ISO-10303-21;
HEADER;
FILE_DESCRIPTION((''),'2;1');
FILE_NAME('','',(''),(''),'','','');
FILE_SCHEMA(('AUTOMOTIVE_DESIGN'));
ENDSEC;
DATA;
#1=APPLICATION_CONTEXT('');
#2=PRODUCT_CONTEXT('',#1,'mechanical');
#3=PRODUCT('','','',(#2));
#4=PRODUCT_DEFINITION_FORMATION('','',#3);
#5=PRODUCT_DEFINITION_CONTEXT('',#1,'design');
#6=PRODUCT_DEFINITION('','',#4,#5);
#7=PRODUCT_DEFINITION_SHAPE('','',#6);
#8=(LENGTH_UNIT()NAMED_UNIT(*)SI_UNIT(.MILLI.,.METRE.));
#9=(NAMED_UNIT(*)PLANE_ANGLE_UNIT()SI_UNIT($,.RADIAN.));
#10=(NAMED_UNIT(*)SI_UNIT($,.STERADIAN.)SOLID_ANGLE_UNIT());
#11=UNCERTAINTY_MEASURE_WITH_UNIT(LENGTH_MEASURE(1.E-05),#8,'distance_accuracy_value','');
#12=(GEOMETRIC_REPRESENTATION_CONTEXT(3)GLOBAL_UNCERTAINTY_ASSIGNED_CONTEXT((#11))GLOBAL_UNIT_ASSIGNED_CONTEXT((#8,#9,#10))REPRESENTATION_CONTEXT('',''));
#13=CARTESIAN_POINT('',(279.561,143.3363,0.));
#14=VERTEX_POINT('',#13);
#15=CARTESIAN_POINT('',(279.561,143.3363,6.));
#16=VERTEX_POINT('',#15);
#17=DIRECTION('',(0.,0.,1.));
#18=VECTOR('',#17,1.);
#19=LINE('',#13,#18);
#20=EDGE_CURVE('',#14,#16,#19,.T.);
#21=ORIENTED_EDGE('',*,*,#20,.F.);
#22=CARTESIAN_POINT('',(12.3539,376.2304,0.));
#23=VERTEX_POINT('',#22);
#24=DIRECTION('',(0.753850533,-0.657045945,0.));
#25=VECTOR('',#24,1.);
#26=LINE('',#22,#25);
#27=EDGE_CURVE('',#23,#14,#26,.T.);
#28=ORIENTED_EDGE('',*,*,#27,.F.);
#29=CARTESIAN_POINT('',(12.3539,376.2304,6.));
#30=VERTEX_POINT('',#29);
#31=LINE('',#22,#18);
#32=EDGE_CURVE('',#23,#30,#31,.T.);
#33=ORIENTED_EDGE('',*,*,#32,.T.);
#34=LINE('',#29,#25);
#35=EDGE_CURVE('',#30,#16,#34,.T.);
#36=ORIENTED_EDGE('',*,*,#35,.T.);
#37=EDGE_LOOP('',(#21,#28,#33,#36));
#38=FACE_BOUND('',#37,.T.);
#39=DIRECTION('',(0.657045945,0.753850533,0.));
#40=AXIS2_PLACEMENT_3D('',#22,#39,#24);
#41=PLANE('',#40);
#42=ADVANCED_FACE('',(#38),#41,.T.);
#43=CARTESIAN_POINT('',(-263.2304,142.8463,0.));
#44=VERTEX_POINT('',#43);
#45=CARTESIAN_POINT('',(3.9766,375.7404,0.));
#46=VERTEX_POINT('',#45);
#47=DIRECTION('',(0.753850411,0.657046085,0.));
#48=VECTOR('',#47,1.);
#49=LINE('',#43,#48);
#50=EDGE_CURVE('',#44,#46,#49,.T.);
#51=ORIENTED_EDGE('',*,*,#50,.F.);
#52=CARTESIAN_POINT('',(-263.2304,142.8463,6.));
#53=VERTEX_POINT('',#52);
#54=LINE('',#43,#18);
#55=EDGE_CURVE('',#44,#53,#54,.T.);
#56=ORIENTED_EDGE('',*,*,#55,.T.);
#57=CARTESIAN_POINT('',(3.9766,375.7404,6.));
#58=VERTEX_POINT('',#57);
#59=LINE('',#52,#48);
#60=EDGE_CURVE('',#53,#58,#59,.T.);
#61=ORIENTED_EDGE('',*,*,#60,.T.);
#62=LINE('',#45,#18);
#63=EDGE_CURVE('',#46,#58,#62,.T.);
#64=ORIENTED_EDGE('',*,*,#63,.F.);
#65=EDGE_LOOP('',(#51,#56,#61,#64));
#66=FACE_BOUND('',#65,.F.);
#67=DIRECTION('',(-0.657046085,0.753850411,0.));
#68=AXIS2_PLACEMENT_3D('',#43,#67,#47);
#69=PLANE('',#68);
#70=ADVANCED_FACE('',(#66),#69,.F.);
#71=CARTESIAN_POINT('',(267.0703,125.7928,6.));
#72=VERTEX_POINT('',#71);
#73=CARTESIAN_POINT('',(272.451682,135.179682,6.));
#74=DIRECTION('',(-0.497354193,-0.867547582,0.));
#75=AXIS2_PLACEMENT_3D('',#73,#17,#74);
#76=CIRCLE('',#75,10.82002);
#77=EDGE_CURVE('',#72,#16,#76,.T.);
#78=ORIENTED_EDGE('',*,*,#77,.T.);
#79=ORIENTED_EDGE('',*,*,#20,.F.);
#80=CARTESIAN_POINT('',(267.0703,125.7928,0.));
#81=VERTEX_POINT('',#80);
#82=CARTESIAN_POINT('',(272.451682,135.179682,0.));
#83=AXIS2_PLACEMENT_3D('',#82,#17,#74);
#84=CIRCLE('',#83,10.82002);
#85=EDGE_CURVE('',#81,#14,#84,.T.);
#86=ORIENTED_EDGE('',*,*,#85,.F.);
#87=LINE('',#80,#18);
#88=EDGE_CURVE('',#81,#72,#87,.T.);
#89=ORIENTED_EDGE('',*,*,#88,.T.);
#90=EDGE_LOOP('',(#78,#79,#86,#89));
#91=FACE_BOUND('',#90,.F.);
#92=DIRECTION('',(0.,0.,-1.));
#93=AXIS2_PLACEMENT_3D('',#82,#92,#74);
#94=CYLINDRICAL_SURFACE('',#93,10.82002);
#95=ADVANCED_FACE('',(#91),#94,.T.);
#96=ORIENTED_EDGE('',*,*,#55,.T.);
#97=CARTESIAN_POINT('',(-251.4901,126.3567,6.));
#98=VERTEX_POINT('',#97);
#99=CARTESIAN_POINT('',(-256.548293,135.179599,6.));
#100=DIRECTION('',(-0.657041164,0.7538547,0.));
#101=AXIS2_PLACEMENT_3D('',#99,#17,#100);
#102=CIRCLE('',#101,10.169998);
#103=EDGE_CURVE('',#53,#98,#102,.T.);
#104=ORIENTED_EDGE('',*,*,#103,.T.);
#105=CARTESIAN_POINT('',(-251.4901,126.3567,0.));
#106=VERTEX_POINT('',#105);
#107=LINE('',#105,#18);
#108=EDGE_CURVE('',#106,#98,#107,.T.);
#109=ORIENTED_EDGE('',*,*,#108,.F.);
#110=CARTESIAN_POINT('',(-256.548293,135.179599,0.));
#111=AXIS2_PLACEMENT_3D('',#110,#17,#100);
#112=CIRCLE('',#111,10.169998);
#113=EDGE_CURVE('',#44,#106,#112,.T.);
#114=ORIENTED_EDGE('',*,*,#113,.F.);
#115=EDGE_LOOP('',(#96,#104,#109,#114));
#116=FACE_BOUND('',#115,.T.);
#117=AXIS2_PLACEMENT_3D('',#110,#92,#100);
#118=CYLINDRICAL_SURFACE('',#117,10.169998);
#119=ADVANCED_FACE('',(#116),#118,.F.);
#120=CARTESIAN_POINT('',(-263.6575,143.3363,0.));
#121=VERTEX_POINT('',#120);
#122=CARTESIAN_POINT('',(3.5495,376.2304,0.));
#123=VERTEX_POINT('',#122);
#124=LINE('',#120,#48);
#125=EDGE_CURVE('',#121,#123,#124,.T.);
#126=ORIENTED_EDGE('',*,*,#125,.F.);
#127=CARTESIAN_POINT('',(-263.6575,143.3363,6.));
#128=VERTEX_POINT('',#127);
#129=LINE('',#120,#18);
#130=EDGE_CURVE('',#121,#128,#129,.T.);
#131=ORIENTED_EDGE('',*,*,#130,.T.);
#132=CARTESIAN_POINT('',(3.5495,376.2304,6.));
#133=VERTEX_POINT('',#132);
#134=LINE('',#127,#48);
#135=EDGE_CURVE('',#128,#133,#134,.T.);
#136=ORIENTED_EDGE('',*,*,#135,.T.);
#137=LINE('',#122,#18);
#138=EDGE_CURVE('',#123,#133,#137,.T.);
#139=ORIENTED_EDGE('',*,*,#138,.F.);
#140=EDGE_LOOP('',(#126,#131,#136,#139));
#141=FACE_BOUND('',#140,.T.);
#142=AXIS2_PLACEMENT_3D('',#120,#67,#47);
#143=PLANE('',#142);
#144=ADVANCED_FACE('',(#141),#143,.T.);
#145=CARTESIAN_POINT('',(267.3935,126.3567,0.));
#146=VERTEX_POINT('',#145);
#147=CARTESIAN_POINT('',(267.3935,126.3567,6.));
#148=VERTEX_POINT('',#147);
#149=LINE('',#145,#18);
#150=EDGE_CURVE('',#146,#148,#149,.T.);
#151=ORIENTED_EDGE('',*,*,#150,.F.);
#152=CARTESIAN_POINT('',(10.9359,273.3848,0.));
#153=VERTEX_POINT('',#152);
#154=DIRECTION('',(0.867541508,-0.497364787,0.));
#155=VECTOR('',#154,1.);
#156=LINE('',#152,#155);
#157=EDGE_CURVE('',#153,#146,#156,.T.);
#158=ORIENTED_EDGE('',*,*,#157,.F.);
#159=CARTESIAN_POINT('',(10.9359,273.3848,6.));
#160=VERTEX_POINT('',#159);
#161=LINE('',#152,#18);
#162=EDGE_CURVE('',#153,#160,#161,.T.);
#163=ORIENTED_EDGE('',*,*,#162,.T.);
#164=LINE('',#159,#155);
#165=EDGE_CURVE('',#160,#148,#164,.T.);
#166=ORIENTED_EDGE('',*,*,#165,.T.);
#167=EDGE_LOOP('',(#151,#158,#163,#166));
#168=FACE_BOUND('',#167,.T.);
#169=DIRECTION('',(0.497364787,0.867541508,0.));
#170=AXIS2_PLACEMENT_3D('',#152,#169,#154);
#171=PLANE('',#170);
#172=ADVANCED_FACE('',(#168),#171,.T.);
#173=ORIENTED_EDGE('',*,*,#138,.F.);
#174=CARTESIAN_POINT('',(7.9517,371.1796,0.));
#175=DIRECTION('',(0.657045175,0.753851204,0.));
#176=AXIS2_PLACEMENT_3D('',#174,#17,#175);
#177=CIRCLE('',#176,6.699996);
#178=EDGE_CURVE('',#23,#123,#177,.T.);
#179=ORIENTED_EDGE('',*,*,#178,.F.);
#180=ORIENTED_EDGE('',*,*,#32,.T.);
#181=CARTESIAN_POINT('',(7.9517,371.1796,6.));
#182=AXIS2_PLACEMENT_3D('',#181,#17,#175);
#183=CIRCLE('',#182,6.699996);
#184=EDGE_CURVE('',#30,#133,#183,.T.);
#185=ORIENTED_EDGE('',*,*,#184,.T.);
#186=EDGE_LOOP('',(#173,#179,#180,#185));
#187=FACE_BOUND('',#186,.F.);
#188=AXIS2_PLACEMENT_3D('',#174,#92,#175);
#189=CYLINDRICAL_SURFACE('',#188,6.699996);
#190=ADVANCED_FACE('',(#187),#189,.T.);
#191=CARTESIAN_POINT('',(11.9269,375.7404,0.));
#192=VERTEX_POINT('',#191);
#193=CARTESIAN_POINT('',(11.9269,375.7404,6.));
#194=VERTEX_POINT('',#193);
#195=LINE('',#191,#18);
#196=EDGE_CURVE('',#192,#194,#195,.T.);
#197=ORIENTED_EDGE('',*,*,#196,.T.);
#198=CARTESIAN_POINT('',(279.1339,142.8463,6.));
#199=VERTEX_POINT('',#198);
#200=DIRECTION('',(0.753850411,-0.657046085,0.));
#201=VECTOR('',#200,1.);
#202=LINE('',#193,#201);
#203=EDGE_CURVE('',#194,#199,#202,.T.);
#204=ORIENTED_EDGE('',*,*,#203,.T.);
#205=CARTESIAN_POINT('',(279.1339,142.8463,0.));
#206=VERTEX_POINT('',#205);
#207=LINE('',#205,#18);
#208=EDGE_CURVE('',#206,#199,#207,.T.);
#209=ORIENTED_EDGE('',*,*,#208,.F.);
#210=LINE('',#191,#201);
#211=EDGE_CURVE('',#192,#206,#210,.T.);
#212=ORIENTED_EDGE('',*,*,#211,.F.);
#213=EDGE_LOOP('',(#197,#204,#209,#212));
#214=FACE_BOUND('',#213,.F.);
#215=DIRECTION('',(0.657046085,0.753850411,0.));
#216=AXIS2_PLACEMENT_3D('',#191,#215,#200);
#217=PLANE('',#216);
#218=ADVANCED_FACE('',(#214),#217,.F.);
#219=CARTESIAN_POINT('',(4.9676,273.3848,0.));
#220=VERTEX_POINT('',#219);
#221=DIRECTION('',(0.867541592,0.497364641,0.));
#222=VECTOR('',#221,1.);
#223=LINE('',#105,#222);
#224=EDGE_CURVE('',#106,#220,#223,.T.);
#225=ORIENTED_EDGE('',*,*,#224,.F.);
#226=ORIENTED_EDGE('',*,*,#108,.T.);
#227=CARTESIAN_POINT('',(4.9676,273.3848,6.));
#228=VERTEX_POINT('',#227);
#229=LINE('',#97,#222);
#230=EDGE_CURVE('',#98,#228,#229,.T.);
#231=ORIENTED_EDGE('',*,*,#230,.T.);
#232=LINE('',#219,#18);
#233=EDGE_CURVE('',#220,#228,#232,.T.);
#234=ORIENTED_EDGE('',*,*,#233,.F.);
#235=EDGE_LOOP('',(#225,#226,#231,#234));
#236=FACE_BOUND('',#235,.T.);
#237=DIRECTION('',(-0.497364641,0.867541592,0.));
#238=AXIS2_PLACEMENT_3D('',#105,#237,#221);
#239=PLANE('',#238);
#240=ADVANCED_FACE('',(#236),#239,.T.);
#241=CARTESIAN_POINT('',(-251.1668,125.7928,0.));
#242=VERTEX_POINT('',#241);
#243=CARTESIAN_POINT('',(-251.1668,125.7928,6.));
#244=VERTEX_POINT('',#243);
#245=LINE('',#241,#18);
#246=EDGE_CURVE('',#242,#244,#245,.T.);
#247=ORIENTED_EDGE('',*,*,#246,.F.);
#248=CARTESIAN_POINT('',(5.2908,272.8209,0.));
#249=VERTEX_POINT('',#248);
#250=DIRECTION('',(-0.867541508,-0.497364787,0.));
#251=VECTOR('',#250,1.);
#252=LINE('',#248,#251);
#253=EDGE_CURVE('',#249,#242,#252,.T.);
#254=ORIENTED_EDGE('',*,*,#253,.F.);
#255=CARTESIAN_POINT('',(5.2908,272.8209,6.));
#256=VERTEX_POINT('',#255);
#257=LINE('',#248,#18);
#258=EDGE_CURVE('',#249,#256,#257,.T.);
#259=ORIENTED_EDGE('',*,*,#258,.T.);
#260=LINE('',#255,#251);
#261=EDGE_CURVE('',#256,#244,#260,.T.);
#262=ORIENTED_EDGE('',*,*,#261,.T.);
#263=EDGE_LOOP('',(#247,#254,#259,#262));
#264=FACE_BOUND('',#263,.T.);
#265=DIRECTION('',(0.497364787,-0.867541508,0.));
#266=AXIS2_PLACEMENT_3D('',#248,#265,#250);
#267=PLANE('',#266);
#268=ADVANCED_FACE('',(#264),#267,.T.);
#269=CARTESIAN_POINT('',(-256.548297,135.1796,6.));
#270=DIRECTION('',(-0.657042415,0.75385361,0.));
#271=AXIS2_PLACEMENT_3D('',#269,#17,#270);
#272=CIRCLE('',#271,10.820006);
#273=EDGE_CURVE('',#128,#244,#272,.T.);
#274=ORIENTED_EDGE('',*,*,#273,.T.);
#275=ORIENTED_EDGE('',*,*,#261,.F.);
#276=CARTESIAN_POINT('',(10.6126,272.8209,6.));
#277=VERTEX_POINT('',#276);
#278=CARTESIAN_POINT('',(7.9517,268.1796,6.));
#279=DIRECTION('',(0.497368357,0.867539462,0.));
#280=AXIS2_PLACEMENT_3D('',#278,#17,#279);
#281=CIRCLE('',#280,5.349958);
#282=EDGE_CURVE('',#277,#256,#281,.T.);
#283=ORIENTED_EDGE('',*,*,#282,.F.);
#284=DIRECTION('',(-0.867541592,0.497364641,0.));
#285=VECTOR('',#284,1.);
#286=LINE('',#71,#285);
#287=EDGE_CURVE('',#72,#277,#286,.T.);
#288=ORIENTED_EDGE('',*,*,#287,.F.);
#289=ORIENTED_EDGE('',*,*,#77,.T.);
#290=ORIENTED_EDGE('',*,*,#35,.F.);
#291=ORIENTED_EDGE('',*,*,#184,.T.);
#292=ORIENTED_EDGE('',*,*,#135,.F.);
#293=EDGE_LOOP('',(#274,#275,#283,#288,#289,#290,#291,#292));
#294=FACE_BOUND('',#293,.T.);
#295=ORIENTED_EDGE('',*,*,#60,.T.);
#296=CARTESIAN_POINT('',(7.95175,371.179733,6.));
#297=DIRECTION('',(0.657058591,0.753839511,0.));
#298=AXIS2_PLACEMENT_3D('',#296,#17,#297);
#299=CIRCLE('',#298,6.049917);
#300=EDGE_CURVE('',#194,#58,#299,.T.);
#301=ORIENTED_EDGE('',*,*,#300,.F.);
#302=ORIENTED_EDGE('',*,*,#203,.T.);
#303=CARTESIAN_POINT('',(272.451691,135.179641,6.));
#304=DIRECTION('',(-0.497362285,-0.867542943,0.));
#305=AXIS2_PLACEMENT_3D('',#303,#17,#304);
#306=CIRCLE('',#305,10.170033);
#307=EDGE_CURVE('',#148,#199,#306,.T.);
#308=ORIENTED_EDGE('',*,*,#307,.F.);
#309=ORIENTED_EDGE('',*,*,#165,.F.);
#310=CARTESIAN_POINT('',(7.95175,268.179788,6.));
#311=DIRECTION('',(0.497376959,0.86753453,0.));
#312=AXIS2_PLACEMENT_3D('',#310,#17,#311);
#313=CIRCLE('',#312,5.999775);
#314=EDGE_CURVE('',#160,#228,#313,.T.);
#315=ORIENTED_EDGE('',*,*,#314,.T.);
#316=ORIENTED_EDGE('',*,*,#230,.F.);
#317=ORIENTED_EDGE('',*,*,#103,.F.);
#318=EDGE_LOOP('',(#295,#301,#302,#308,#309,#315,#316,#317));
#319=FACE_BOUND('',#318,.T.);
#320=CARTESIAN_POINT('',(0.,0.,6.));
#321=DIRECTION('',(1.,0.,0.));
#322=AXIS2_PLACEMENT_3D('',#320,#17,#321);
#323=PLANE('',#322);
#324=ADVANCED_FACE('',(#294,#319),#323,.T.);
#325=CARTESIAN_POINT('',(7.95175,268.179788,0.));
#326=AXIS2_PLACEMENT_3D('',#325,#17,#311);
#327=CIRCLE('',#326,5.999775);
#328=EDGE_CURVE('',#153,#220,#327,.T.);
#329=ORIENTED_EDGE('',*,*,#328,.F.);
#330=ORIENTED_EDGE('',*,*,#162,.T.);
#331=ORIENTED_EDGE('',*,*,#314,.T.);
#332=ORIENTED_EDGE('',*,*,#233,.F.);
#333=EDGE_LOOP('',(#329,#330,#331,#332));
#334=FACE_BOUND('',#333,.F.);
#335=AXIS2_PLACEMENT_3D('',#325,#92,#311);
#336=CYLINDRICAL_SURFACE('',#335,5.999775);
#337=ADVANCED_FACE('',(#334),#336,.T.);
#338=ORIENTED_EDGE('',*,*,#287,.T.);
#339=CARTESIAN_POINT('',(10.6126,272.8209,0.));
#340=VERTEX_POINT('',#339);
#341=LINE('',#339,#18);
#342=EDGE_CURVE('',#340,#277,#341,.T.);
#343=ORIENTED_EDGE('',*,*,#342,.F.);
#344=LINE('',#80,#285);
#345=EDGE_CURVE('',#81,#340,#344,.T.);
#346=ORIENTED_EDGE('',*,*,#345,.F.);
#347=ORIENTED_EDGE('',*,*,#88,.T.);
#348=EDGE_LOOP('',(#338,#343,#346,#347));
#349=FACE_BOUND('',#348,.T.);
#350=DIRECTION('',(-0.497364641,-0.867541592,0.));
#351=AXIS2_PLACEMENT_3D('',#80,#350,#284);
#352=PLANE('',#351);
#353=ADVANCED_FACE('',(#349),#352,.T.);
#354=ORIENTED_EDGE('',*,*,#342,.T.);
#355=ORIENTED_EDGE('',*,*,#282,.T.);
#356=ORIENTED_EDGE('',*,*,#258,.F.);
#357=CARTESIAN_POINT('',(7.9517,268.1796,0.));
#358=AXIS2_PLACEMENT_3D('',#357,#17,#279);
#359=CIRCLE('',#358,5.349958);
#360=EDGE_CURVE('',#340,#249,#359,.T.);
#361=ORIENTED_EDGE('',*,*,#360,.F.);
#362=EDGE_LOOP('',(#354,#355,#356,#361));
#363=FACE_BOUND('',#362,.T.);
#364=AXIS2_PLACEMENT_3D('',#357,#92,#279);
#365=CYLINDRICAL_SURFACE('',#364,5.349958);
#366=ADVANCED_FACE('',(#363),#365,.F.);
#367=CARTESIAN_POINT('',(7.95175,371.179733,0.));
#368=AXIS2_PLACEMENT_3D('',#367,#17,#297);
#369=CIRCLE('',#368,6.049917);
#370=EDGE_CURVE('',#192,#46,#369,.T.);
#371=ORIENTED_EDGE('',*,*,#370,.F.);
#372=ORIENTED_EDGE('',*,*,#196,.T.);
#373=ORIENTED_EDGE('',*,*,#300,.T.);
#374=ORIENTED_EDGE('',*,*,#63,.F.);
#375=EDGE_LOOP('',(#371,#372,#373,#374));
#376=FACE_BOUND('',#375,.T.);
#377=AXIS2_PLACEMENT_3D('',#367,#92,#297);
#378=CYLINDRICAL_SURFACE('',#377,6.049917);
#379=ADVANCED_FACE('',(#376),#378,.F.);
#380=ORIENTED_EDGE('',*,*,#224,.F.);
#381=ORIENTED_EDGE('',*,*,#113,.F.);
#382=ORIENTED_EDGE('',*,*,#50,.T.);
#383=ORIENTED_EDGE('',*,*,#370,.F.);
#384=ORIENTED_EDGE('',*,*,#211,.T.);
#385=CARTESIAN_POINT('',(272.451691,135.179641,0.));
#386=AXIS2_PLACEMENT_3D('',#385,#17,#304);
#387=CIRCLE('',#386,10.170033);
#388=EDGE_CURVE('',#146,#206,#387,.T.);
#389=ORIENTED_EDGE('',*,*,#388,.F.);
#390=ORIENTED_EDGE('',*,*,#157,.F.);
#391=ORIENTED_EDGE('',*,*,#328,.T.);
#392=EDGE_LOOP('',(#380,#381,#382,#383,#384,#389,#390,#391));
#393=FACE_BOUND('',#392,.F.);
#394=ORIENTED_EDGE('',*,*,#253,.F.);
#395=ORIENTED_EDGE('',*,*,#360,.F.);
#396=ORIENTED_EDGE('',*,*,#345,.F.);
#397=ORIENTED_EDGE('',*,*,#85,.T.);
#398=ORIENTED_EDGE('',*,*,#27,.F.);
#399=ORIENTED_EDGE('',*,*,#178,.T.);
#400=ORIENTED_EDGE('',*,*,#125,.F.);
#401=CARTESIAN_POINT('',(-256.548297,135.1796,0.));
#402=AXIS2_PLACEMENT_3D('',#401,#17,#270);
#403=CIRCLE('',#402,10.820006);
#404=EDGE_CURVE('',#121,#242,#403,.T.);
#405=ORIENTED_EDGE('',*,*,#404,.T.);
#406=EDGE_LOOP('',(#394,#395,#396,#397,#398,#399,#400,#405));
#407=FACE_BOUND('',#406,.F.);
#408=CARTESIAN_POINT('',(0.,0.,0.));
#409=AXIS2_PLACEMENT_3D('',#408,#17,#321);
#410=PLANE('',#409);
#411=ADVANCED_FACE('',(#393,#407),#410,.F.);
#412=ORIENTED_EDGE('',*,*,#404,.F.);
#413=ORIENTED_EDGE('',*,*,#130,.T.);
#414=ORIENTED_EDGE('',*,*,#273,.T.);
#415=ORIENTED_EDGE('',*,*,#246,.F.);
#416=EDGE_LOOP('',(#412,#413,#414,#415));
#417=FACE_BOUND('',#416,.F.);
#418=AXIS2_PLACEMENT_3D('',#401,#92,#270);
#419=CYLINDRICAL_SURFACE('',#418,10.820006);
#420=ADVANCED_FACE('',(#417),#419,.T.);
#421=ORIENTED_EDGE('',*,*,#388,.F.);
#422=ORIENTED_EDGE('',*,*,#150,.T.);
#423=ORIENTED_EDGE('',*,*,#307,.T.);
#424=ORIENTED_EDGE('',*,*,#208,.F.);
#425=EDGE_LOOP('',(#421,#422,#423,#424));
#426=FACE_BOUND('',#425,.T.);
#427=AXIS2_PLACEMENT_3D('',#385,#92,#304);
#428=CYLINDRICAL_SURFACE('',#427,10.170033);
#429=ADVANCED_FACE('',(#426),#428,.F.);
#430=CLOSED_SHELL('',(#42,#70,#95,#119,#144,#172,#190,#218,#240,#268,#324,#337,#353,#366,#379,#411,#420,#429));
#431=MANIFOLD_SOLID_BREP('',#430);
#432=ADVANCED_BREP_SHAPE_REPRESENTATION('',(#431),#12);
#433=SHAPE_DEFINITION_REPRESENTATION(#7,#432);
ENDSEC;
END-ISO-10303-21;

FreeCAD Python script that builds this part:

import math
import FreeCAD as App
import Part
import Sketcher
from FreeCAD import Vector

doc = App.newDocument("Part")
body = doc.addObject("PartDesign::Body", "Body")

# Sketch on XY plane
sketch1 = body.newObject("Sketcher::SketchObject", "Sketch")
sketch1.AttachmentSupport = (doc.getObject("XY_Plane"), [""])
sketch1.MapMode = "FlatFace"
sketch1.addGeometry([
    Part.LineSegment(Vector(279.561, 143.3363, 0), Vector(12.3539, 376.2304, 0)),  # 0
    Part.ArcOfCircle(Part.Circle(Vector(7.9517, 371.1796, 0), Vector(0, 0, 1), 6.699996), math.radians(48.925092), math.radians(131.074908)),  # 1
    Part.LineSegment(Vector(3.5495, 376.2304, 0), Vector(-263.6575, 143.3363, 0)),  # 2
    Part.ArcOfCircle(Part.Circle(Vector(-256.5483, 135.1796, 0), Vector(0, 0, 1), 10.820004), math.radians(131.074689), math.radians(299.825866)),  # 3
    Part.LineSegment(Vector(-251.1668, 125.7928, 0), Vector(5.2908, 272.8209, 0)),  # 4
    Part.ArcOfCircle(Part.Circle(Vector(7.9517, 268.1796, 0), Vector(0, 0, 1), 5.349958), math.radians(60.173956), math.radians(119.826044)),  # 5
    Part.LineSegment(Vector(10.6126, 272.8209, 0), Vector(267.0703, 125.7928, 0)),  # 6
    Part.ArcOfCircle(Part.Circle(Vector(272.4517, 135.1796, 0), Vector(0, 0, 1), 10.819957), math.radians(-119.825406), math.radians(48.924912)),  # 7
    Part.ArcOfCircle(Part.Circle(Vector(7.9517, 371.1796, 0), Vector(0, 0, 1), 6.050051), math.radians(48.924545), math.radians(131.074741)),  # 8
    Part.LineSegment(Vector(11.9269, 375.7404, 0), Vector(279.1339, 142.8463, 0)),  # 9
    Part.ArcOfCircle(Part.Circle(Vector(272.4517, 135.1796, 0), Vector(0, 0, 1), 10.170003), math.radians(-119.825801), math.radians(48.925)),  # 10
    Part.LineSegment(Vector(267.3935, 126.3567, 0), Vector(10.9359, 273.3848, 0)),  # 11
    Part.ArcOfCircle(Part.Circle(Vector(7.9517, 268.1796, 0), Vector(0, 0, 1), 5.999963), math.radians(60.173865), math.radians(119.825306)),  # 12
    Part.LineSegment(Vector(4.9676, 273.3848, 0), Vector(-251.4901, 126.3567, 0)),  # 13
    Part.ArcOfCircle(Part.Circle(Vector(-256.5483, 135.1796, 0), Vector(0, 0, 1), 10.169993), math.radians(131.074575), math.radians(299.825801)),  # 14
    Part.LineSegment(Vector(-263.2304, 142.8463, 0), Vector(3.9766, 375.7404, 0)),  # 15
], False)
sketch1.addConstraint([
    Sketcher.Constraint("Tangent", 0, 2, 1, 1),
    Sketcher.Constraint("Tangent", 1, 2, 2, 1),
    Sketcher.Constraint("Tangent", 2, 2, 3, 1),
    Sketcher.Constraint("Tangent", 3, 2, 4, 1),
    Sketcher.Constraint("Tangent", 4, 2, 5, 2),
    Sketcher.Constraint("Tangent", 5, 1, 6, 1),
    Sketcher.Constraint("Tangent", 6, 2, 7, 1),
    Sketcher.Constraint("Tangent", 7, 2, 0, 1),
    Sketcher.Constraint("Tangent", 8, 1, 9, 1),
    Sketcher.Constraint("Tangent", 9, 2, 10, 2),
    Sketcher.Constraint("Tangent", 10, 1, 11, 1),
    Sketcher.Constraint("Tangent", 11, 2, 12, 1),
    Sketcher.Constraint("Tangent", 12, 2, 13, 1),
    Sketcher.Constraint("Tangent", 13, 2, 14, 2),
    Sketcher.Constraint("Tangent", 14, 1, 15, 1),
    Sketcher.Constraint("Tangent", 15, 2, 8, 2),
    Sketcher.Constraint("Coincident", 8, 3, 1, 3),
    Sketcher.Constraint("Coincident", 10, 3, 7, 3),
    Sketcher.Constraint("Coincident", 12, 3, 5, 3),
    Sketcher.Constraint("Coincident", 14, 3, 3, 3),
    Sketcher.Constraint("Equal", 3, 7),
    Sketcher.Constraint("Equal", 10, 14),
    Sketcher.Constraint("Parallel", 0, 9),
    Sketcher.Constraint("Parallel", 6, 11),
    Sketcher.Constraint("Horizontal", 3, 3, 7, 3),
    Sketcher.Constraint("Vertical", 1, 3, 5, 3),
    Sketcher.Constraint("Equal", 0, 2),
    Sketcher.Constraint("Radius", 12, 6.0),
    Sketcher.Constraint("Radius", 8, 6.05),
    Sketcher.Constraint("Radius", 10, 10.17),
    Sketcher.Constraint("DistanceY", 3, 3, 1, 3, 236.0),
    Sketcher.Constraint("DistanceY", 5, 3, 1, 3, 103.0),
    Sketcher.Constraint("Radius", 1, 6.7),
    Sketcher.Constraint("DistanceX", 3, 3, 1, 3, 264.5),
    Sketcher.Constraint("DistanceX", 13, 2, -1, 1, 251.49),
    Sketcher.Constraint("DistanceY", -1, 1, 4, 2, 272.821),
])
pad1 = body.newObject("PartDesign::Pad", "Pad")
pad1.Profile = sketch1
pad1.Length = 6

doc.recompute()
